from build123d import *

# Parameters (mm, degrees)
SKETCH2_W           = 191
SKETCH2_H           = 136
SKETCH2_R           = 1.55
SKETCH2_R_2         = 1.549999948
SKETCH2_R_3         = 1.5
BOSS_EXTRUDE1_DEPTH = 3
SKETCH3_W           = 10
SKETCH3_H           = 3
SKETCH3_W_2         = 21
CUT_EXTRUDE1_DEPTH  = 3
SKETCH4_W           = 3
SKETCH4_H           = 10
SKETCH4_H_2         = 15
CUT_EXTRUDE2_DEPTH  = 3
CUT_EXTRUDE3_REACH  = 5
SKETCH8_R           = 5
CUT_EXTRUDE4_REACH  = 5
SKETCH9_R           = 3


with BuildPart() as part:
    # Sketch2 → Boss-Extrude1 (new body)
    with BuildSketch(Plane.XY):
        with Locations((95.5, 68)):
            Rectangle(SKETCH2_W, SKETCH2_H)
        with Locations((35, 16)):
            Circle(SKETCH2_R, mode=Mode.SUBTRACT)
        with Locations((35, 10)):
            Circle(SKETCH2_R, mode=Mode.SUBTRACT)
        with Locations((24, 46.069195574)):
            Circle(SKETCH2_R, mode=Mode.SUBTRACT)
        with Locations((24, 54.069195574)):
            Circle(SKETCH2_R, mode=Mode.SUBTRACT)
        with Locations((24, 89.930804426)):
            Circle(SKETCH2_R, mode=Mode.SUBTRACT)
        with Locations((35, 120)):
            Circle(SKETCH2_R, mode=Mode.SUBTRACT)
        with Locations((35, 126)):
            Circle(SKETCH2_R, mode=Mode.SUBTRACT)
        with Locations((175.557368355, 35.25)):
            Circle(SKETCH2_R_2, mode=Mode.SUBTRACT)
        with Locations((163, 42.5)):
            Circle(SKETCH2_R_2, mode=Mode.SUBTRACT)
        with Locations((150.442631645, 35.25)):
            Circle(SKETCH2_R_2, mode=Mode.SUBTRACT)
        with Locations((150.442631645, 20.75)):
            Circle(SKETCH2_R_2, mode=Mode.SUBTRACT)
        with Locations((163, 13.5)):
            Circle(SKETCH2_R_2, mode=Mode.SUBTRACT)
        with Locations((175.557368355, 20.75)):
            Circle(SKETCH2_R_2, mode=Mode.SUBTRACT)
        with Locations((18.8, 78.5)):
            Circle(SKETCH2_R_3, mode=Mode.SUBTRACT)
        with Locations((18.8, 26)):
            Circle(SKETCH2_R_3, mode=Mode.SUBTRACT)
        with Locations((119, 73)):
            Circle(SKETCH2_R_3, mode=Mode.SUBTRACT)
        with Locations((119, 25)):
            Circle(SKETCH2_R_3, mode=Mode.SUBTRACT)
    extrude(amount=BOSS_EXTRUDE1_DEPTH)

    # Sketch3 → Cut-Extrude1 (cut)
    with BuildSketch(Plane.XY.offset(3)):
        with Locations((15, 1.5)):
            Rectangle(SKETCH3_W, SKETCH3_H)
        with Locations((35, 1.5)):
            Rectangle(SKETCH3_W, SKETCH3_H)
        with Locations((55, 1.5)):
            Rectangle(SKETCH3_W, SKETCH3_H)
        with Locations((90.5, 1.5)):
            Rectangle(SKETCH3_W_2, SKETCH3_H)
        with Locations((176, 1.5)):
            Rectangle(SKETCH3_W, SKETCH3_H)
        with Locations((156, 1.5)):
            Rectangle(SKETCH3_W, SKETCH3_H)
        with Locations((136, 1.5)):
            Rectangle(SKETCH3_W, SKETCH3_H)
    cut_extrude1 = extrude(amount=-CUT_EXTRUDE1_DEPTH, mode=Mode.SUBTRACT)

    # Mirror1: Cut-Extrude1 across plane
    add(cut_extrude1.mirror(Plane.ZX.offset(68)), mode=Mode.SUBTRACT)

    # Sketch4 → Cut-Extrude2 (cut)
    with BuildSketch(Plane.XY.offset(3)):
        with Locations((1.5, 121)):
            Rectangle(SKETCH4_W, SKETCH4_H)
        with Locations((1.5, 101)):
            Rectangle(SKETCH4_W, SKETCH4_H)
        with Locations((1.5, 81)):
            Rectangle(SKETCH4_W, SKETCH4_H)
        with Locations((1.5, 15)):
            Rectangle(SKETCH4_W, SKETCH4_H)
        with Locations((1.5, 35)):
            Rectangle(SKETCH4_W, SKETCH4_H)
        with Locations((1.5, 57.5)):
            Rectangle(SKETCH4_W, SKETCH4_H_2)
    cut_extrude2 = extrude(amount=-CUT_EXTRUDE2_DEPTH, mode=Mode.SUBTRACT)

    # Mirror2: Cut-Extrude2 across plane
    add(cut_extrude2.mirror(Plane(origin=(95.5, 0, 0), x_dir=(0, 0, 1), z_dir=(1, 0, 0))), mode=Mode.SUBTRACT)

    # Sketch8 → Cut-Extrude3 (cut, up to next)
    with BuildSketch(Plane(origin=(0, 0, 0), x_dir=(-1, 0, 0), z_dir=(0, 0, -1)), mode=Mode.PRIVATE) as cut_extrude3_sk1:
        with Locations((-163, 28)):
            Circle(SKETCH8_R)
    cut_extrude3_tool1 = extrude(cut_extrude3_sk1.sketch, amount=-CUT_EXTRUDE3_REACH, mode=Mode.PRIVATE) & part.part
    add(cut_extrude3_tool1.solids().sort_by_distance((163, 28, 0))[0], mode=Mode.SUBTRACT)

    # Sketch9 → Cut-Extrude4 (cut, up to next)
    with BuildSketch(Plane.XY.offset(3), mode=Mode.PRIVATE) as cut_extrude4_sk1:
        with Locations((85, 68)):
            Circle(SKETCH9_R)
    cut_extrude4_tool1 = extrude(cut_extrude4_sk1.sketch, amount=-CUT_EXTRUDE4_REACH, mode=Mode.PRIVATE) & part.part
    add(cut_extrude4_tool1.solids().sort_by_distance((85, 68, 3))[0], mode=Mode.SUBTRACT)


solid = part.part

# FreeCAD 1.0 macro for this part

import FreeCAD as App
import Part
import Sketcher
from FreeCAD import Vector


def add_polygon(sketch, points):
    """Adds a closed chain of lines whose ends are joined by coincident constraints."""
    first, n = sketch.GeometryCount, len(points)
    for a, b in zip(points, points[1:] + points[:1]):
        sketch.addGeometry(Part.LineSegment(App.Vector(*a, 0), App.Vector(*b, 0)), False)
    for i in range(n):
        sketch.addConstraint(Sketcher.Constraint("Coincident", first + i, 2, first + (i + 1) % n, 1))

doc = App.newDocument("Part")
body = doc.addObject("PartDesign::Body", "Body")

# Sketch on XY plane
sketch1 = body.newObject("Sketcher::SketchObject", "Sketch")
sketch1.AttachmentSupport = (doc.getObject("XY_Plane"), [""])
sketch1.MapMode = "FlatFace"
add_polygon(sketch1, [(0, 136), (0, 0), (191, 0), (191, 136)])  # lines 0-3
sketch1.addGeometry(Part.Circle(Vector(35, 10, 0), Vector(0, 0, 1), 1.55), False)  # 4
sketch1.addGeometry(Part.Circle(Vector(35, 16, 0), Vector(0, 0, 1), 1.55), False)  # 5
sketch1.addGeometry(Part.Circle(Vector(18.8, 26, 0), Vector(0, 0, 1), 1.5), False)  # 6
sketch1.addGeometry(Part.Circle(Vector(24, 46.069196, 0), Vector(0, 0, 1), 1.55), False)  # 7
sketch1.addGeometry(Part.Circle(Vector(24, 54.069196, 0), Vector(0, 0, 1), 1.55), False)  # 8
sketch1.addGeometry(Part.Circle(Vector(119, 25, 0), Vector(0, 0, 1), 1.5), False)  # 9
sketch1.addGeometry(Part.Circle(Vector(150.442632, 20.75, 0), Vector(0, 0, 1), 1.55), False)  # 10
sketch1.addGeometry(Part.Circle(Vector(163, 13.5, 0), Vector(0, 0, 1), 1.55), False)  # 11
sketch1.addGeometry(Part.Circle(Vector(175.557368, 20.75, 0), Vector(0, 0, 1), 1.55), False)  # 12
sketch1.addGeometry(Part.Circle(Vector(150.442632, 35.25, 0), Vector(0, 0, 1), 1.55), False)  # 13
sketch1.addGeometry(Part.Circle(Vector(175.557368, 35.25, 0), Vector(0, 0, 1), 1.55), False)  # 14
sketch1.addGeometry(Part.Circle(Vector(163, 42.5, 0), Vector(0, 0, 1), 1.55), False)  # 15
sketch1.addGeometry(Part.Circle(Vector(18.8, 78.5, 0), Vector(0, 0, 1), 1.5), False)  # 16
sketch1.addGeometry(Part.Circle(Vector(24, 89.930804, 0), Vector(0, 0, 1), 1.55), False)  # 17
sketch1.addGeometry(Part.Circle(Vector(35, 120, 0), Vector(0, 0, 1), 1.55), False)  # 18
sketch1.addGeometry(Part.Circle(Vector(35, 126, 0), Vector(0, 0, 1), 1.55), False)  # 19
sketch1.addGeometry(Part.Circle(Vector(119, 73, 0), Vector(0, 0, 1), 1.5), False)  # 20
sketch1.addConstraint([
    Sketcher.Constraint("Vertical", 0),
    Sketcher.Constraint("Horizontal", 1),
    Sketcher.Constraint("Vertical", 2),
    Sketcher.Constraint("Horizontal", 3),
    Sketcher.Constraint("Coincident", 0, 2, -1, 1),
    Sketcher.Constraint("Equal", 4, 5),
    Sketcher.Constraint("Equal", 5, 7),
    Sketcher.Constraint("Equal", 7, 8),
    Sketcher.Constraint("Equal", 6, 9),
    Sketcher.Constraint("Equal", 8, 10),
    Sketcher.Constraint("Equal", 10, 11),
    Sketcher.Constraint("Equal", 11, 12),
    Sketcher.Constraint("Equal", 12, 13),
    Sketcher.Constraint("Equal", 13, 14),
    Sketcher.Constraint("Equal", 14, 15),
    Sketcher.Constraint("Equal", 9, 16),
    Sketcher.Constraint("Equal", 15, 17),
    Sketcher.Constraint("Equal", 17, 18),
    Sketcher.Constraint("Equal", 18, 19),
    Sketcher.Constraint("Equal", 16, 20),
    Sketcher.Constraint("Horizontal", 10, 3, 12, 3),
    Sketcher.Constraint("Horizontal", 13, 3, 14, 3),
    Sketcher.Constraint("Vertical", 4, 3, 5, 3),
    Sketcher.Constraint("Vertical", 7, 3, 8, 3),
    Sketcher.Constraint("Vertical", 10, 3, 13, 3),
    Sketcher.Constraint("Vertical", 12, 3, 14, 3),
    Sketcher.Constraint("Vertical", 11, 3, 15, 3),
    Sketcher.Constraint("Vertical", 6, 3, 16, 3),
    Sketcher.Constraint("Vertical", 8, 3, 17, 3),
    Sketcher.Constraint("Vertical", 5, 3, 18, 3),
    Sketcher.Constraint("Vertical", 18, 3, 19, 3),
    Sketcher.Constraint("Vertical", 9, 3, 20, 3),
    Sketcher.Constraint("Diameter", 6, 3.0),
    Sketcher.Constraint("Diameter", 4, 3.1),
    Sketcher.Constraint("DistanceX", 1, 1, 1, 2, 191.0),
    Sketcher.Constraint("DistanceY", 0, 2, 0, 1, 136.0),
    Sketcher.Constraint("DistanceX", -1, 1, 4, 3, 35.0),
    Sketcher.Constraint("DistanceY", -1, 1, 4, 3, 10.0),
    Sketcher.Constraint("DistanceY", -1, 1, 5, 3, 16.0),
    Sketcher.Constraint("DistanceY", -1, 1, 6, 3, 26.0),
    Sketcher.Constraint("DistanceX", -1, 1, 7, 3, 24.0),
    Sketcher.Constraint("DistanceX", -1, 1, 9, 3, 119.0),
    Sketcher.Constraint("DistanceY", -1, 1, 9, 3, 25.0),
    Sketcher.Constraint("DistanceX", -1, 1, 11, 3, 163.0),
    Sketcher.Constraint("DistanceY", -1, 1, 18, 3, 120.0),
    Sketcher.Constraint("DistanceY", -1, 1, 19, 3, 126.0),
    Sketcher.Constraint("DistanceY", -1, 1, 20, 3, 73.0),
    Sketcher.Constraint("DistanceY", 7, 3, 8, 3, 8.0),
    Sketcher.Constraint("DistanceY", 11, 3, 15, 3, 29.0),
    Sketcher.Constraint("DistanceX", -1, 1, 6, 3, 18.8),
    Sketcher.Constraint("DistanceY", -1, 1, 11, 3, 13.5),
    Sketcher.Constraint("DistanceY", -1, 1, 16, 3, 78.5),
    Sketcher.Constraint("DistanceY", 10, 3, 13, 3, 14.5),
    Sketcher.Constraint("DistanceY", -1, 1, 10, 3, 20.75),
    Sketcher.Constraint("DistanceX", -1, 1, 10, 3, 150.442632),
    Sketcher.Constraint("DistanceX", -1, 1, 12, 3, 175.557368),
    Sketcher.Constraint("DistanceY", 8, 3, 17, 3, 35.861609),
    Sketcher.Constraint("DistanceY", -1, 1, 7, 3, 46.069196),
])
pad1 = body.newObject("PartDesign::Pad", "Pad")
pad1.Profile = sketch1
pad1.Length = 3

# Sketch on XY plane
sketch2 = body.newObject("Sketcher::SketchObject", "Sketch001")
sketch2.AttachmentSupport = (doc.getObject("XY_Plane"), [""])
sketch2.MapMode = "FlatFace"
sketch2.AttachmentOffset = App.Placement(Vector(0, 0, 3), App.Rotation())
add_polygon(sketch2, [(10, 3), (10, 0), (20, 0), (20, 3)])  # lines 0-3
add_polygon(sketch2, [(30, 3), (30, 0), (40, 0), (40, 3)])  # lines 4-7
add_polygon(sketch2, [(50, 3), (50, 0), (60, 0), (60, 3)])  # lines 8-11
add_polygon(sketch2, [(80, 3), (80, 0), (101, 0), (101, 3)])  # lines 12-15
add_polygon(sketch2, [(171, 3), (171, 0), (181, 0), (181, 3)])  # lines 16-19
add_polygon(sketch2, [(151, 3), (151, 0), (161, 0), (161, 3)])  # lines 20-23
add_polygon(sketch2, [(131, 3), (131, 0), (141, 0), (141, 3)])  # lines 24-27
sketch2.addConstraint([
    Sketcher.Constraint("Vertical", 0),
    Sketcher.Constraint("Horizontal", 1),
    Sketcher.Constraint("Vertical", 2),
    Sketcher.Constraint("Horizontal", 3),
    Sketcher.Constraint("Vertical", 4),
    Sketcher.Constraint("Horizontal", 5),
    Sketcher.Constraint("Vertical", 6),
    Sketcher.Constraint("Horizontal", 7),
    Sketcher.Constraint("Vertical", 8),
    Sketcher.Constraint("Horizontal", 9),
    Sketcher.Constraint("Vertical", 10),
    Sketcher.Constraint("Horizontal", 11),
    Sketcher.Constraint("Vertical", 12),
    Sketcher.Constraint("Horizontal", 13),
    Sketcher.Constraint("Vertical", 14),
    Sketcher.Constraint("Horizontal", 15),
    Sketcher.Constraint("Vertical", 16),
    Sketcher.Constraint("Horizontal", 17),
    Sketcher.Constraint("Vertical", 18),
    Sketcher.Constraint("Horizontal", 19),
    Sketcher.Constraint("Vertical", 20),
    Sketcher.Constraint("Horizontal", 21),
    Sketcher.Constraint("Vertical", 22),
    Sketcher.Constraint("Horizontal", 23),
    Sketcher.Constraint("Vertical", 24),
    Sketcher.Constraint("Horizontal", 25),
    Sketcher.Constraint("Vertical", 26),
    Sketcher.Constraint("Horizontal", 27),
    Sketcher.Constraint("PointOnObject", 0, 2, -1),
    Sketcher.Constraint("PointOnObject", 4, 2, -1),
    Sketcher.Constraint("PointOnObject", 8, 2, -1),
    Sketcher.Constraint("PointOnObject", 12, 2, -1),
    Sketcher.Constraint("PointOnObject", 16, 2, -1),
    Sketcher.Constraint("PointOnObject", 20, 2, -1),
    Sketcher.Constraint("PointOnObject", 24, 2, -1),
    Sketcher.Constraint("Horizontal", 3, 2, 6, 2),
    Sketcher.Constraint("Horizontal", 7, 2, 10, 2),
    Sketcher.Constraint("Horizontal", 11, 2, 14, 2),
    Sketcher.Constraint("Horizontal", 15, 2, 18, 2),
    Sketcher.Constraint("Horizontal", 19, 2, 22, 2),
    Sketcher.Constraint("Horizontal", 23, 2, 26, 2),
    Sketcher.Constraint("Equal", 3, 5),
    Sketcher.Constraint("Equal", 7, 9),
    Sketcher.Constraint("Equal", 11, 17),
    Sketcher.Constraint("Equal", 19, 21),
    Sketcher.Constraint("Equal", 23, 25),
    Sketcher.Constraint("DistanceX", 1, 1, 1, 2, 10.0),
    Sketcher.Constraint("DistanceX", 13, 1, 13, 2, 21.0),
    Sketcher.Constraint("DistanceY", 0, 2, 0, 1, 3.0),
    Sketcher.Constraint("DistanceX", -1, 1, 0, 2, 10.0),
    Sketcher.Constraint("DistanceX", -1, 1, 4, 2, 30.0),
    Sketcher.Constraint("DistanceX", -1, 1, 8, 2, 50.0),
    Sketcher.Constraint("DistanceX", -1, 1, 12, 2, 80.0),
    Sketcher.Constraint("DistanceX", -1, 1, 16, 2, 171.0),
    Sketcher.Constraint("DistanceX", -1, 1, 20, 2, 151.0),
    Sketcher.Constraint("DistanceX", -1, 1, 24, 2, 131.0),
])
pocket1 = body.newObject("PartDesign::Pocket", "Pocket")
pocket1.Profile = sketch2
pocket1.Length = 3
doc.recompute()

datumplane = body.newObject("PartDesign::Plane", "DatumPlane")
datumplane.AttachmentSupport = (doc.getObject("XZ_Plane"), [""])
datumplane.MapMode = "FlatFace"
datumplane.AttachmentOffset = App.Placement(Vector(0, 0, -68), App.Rotation())
mirrored = body.newObject("PartDesign::Mirrored", "Mirrored")
mirrored.Originals = [pocket1]
mirrored.MirrorPlane = (datumplane, [""])
body.Tip = mirrored

# Sketch on XY plane
sketch3 = body.newObject("Sketcher::SketchObject", "Sketch002")
sketch3.AttachmentSupport = (doc.getObject("XY_Plane"), [""])
sketch3.MapMode = "FlatFace"
sketch3.AttachmentOffset = App.Placement(Vector(0, 0, 3), App.Rotation())
add_polygon(sketch3, [(0, 126), (0, 116), (3, 116), (3, 126)])  # lines 0-3
add_polygon(sketch3, [(0, 106), (0, 96), (3, 96), (3, 106)])  # lines 4-7
add_polygon(sketch3, [(0, 86), (0, 76), (3, 76), (3, 86)])  # lines 8-11
add_polygon(sketch3, [(0, 20), (0, 10), (3, 10), (3, 20)])  # lines 12-15
add_polygon(sketch3, [(0, 40), (0, 30), (3, 30), (3, 40)])  # lines 16-19
add_polygon(sketch3, [(0, 65), (0, 50), (3, 50), (3, 65)])  # lines 20-23
sketch3.addConstraint([
    Sketcher.Constraint("Vertical", 0),
    Sketcher.Constraint("Horizontal", 1),
    Sketcher.Constraint("Vertical", 2),
    Sketcher.Constraint("Horizontal", 3),
    Sketcher.Constraint("Vertical", 4),
    Sketcher.Constraint("Horizontal", 5),
    Sketcher.Constraint("Vertical", 6),
    Sketcher.Constraint("Horizontal", 7),
    Sketcher.Constraint("Vertical", 8),
    Sketcher.Constraint("Horizontal", 9),
    Sketcher.Constraint("Vertical", 10),
    Sketcher.Constraint("Horizontal", 11),
    Sketcher.Constraint("Vertical", 12),
    Sketcher.Constraint("Horizontal", 13),
    Sketcher.Constraint("Vertical", 14),
    Sketcher.Constraint("Horizontal", 15),
    Sketcher.Constraint("Vertical", 16),
    Sketcher.Constraint("Horizontal", 17),
    Sketcher.Constraint("Vertical", 18),
    Sketcher.Constraint("Horizontal", 19),
    Sketcher.Constraint("Vertical", 20),
    Sketcher.Constraint("Horizontal", 21),
    Sketcher.Constraint("Vertical", 22),
    Sketcher.Constraint("Horizontal", 23),
    Sketcher.Constraint("PointOnObject", 0, 2, -2),
    Sketcher.Constraint("PointOnObject", 4, 2, -2),
    Sketcher.Constraint("PointOnObject", 8, 2, -2),
    Sketcher.Constraint("PointOnObject", 12, 2, -2),
    Sketcher.Constraint("PointOnObject", 16, 2, -2),
    Sketcher.Constraint("PointOnObject", 20, 2, -2),
    Sketcher.Constraint("Vertical", 2, 2, 5, 2),
    Sketcher.Constraint("Vertical", 6, 2, 9, 2),
    Sketcher.Constraint("Vertical", 10, 2, 13, 2),
    Sketcher.Constraint("Vertical", 14, 2, 17, 2),
    Sketcher.Constraint("Vertical", 18, 2, 21, 2),
    Sketcher.Constraint("Equal", 2, 4),
    Sketcher.Constraint("Equal", 6, 8),
    Sketcher.Constraint("Equal", 10, 12),
    Sketcher.Constraint("Equal", 14, 16),
    Sketcher.Constraint("DistanceX", 1, 1, 1, 2, 3.0),
    Sketcher.Constraint("DistanceY", 0, 2, 0, 1, 10.0),
    Sketcher.Constraint("DistanceY", 20, 2, 20, 1, 15.0),
    Sketcher.Constraint("DistanceY", -1, 1, 0, 2, 116.0),
    Sketcher.Constraint("DistanceY", -1, 1, 4, 2, 96.0),
    Sketcher.Constraint("DistanceY", -1, 1, 8, 2, 76.0),
    Sketcher.Constraint("DistanceY", -1, 1, 12, 2, 10.0),
    Sketcher.Constraint("DistanceY", -1, 1, 16, 2, 30.0),
    Sketcher.Constraint("DistanceY", -1, 1, 20, 2, 50.0),
])
pocket2 = body.newObject("PartDesign::Pocket", "Pocket001")
pocket2.Profile = sketch3
pocket2.Length = 3
doc.recompute()

datumplane2 = body.newObject("PartDesign::Plane", "DatumPlane001")
datumplane2.AttachmentSupport = (doc.getObject("YZ_Plane"), [""])
datumplane2.MapMode = "FlatFace"
datumplane2.AttachmentOffset = App.Placement(Vector(0, 0, 95.5), App.Rotation())
mirrored2 = body.newObject("PartDesign::Mirrored", "Mirrored001")
mirrored2.Originals = [pocket2]
mirrored2.MirrorPlane = (datumplane2, [""])
body.Tip = mirrored2

# Sketch on XY plane
sketch4 = body.newObject("Sketcher::SketchObject", "Sketch003")
sketch4.AttachmentSupport = (doc.getObject("XY_Plane"), [""])
sketch4.MapMode = "FlatFace"
sketch4.addGeometry(Part.Circle(Vector(163, 28, 0), Vector(0, 0, 1), 5), False)
sketch4.addConstraint([
    Sketcher.Constraint("Diameter", 0, 10.0),
    Sketcher.Constraint("DistanceX", -1, 1, 0, 3, 163.0),
    Sketcher.Constraint("DistanceY", -1, 1, 0, 3, 28.0),
])
pocket3 = body.newObject("PartDesign::Pocket", "Pocket002")
pocket3.Profile = sketch4
pocket3.Type = "UpToFirst"
pocket3.Reversed = True

# Sketch on XY plane
sketch5 = body.newObject("Sketcher::SketchObject", "Sketch004")
sketch5.AttachmentSupport = (doc.getObject("XY_Plane"), [""])
sketch5.MapMode = "FlatFace"
sketch5.AttachmentOffset = App.Placement(Vector(0, 0, 3), App.Rotation())
sketch5.addGeometry(Part.Circle(Vector(85, 68, 0), Vector(0, 0, 1), 3), False)
sketch5.addConstraint([
    Sketcher.Constraint("Diameter", 0, 6.0),
    Sketcher.Constraint("DistanceX", -1, 1, 0, 3, 85.0),
    Sketcher.Constraint("DistanceY", -1, 1, 0, 3, 68.0),
])
pocket4 = body.newObject("PartDesign::Pocket", "Pocket003")
pocket4.Profile = sketch5
pocket4.Type = "UpToFirst"

doc.recompute()
